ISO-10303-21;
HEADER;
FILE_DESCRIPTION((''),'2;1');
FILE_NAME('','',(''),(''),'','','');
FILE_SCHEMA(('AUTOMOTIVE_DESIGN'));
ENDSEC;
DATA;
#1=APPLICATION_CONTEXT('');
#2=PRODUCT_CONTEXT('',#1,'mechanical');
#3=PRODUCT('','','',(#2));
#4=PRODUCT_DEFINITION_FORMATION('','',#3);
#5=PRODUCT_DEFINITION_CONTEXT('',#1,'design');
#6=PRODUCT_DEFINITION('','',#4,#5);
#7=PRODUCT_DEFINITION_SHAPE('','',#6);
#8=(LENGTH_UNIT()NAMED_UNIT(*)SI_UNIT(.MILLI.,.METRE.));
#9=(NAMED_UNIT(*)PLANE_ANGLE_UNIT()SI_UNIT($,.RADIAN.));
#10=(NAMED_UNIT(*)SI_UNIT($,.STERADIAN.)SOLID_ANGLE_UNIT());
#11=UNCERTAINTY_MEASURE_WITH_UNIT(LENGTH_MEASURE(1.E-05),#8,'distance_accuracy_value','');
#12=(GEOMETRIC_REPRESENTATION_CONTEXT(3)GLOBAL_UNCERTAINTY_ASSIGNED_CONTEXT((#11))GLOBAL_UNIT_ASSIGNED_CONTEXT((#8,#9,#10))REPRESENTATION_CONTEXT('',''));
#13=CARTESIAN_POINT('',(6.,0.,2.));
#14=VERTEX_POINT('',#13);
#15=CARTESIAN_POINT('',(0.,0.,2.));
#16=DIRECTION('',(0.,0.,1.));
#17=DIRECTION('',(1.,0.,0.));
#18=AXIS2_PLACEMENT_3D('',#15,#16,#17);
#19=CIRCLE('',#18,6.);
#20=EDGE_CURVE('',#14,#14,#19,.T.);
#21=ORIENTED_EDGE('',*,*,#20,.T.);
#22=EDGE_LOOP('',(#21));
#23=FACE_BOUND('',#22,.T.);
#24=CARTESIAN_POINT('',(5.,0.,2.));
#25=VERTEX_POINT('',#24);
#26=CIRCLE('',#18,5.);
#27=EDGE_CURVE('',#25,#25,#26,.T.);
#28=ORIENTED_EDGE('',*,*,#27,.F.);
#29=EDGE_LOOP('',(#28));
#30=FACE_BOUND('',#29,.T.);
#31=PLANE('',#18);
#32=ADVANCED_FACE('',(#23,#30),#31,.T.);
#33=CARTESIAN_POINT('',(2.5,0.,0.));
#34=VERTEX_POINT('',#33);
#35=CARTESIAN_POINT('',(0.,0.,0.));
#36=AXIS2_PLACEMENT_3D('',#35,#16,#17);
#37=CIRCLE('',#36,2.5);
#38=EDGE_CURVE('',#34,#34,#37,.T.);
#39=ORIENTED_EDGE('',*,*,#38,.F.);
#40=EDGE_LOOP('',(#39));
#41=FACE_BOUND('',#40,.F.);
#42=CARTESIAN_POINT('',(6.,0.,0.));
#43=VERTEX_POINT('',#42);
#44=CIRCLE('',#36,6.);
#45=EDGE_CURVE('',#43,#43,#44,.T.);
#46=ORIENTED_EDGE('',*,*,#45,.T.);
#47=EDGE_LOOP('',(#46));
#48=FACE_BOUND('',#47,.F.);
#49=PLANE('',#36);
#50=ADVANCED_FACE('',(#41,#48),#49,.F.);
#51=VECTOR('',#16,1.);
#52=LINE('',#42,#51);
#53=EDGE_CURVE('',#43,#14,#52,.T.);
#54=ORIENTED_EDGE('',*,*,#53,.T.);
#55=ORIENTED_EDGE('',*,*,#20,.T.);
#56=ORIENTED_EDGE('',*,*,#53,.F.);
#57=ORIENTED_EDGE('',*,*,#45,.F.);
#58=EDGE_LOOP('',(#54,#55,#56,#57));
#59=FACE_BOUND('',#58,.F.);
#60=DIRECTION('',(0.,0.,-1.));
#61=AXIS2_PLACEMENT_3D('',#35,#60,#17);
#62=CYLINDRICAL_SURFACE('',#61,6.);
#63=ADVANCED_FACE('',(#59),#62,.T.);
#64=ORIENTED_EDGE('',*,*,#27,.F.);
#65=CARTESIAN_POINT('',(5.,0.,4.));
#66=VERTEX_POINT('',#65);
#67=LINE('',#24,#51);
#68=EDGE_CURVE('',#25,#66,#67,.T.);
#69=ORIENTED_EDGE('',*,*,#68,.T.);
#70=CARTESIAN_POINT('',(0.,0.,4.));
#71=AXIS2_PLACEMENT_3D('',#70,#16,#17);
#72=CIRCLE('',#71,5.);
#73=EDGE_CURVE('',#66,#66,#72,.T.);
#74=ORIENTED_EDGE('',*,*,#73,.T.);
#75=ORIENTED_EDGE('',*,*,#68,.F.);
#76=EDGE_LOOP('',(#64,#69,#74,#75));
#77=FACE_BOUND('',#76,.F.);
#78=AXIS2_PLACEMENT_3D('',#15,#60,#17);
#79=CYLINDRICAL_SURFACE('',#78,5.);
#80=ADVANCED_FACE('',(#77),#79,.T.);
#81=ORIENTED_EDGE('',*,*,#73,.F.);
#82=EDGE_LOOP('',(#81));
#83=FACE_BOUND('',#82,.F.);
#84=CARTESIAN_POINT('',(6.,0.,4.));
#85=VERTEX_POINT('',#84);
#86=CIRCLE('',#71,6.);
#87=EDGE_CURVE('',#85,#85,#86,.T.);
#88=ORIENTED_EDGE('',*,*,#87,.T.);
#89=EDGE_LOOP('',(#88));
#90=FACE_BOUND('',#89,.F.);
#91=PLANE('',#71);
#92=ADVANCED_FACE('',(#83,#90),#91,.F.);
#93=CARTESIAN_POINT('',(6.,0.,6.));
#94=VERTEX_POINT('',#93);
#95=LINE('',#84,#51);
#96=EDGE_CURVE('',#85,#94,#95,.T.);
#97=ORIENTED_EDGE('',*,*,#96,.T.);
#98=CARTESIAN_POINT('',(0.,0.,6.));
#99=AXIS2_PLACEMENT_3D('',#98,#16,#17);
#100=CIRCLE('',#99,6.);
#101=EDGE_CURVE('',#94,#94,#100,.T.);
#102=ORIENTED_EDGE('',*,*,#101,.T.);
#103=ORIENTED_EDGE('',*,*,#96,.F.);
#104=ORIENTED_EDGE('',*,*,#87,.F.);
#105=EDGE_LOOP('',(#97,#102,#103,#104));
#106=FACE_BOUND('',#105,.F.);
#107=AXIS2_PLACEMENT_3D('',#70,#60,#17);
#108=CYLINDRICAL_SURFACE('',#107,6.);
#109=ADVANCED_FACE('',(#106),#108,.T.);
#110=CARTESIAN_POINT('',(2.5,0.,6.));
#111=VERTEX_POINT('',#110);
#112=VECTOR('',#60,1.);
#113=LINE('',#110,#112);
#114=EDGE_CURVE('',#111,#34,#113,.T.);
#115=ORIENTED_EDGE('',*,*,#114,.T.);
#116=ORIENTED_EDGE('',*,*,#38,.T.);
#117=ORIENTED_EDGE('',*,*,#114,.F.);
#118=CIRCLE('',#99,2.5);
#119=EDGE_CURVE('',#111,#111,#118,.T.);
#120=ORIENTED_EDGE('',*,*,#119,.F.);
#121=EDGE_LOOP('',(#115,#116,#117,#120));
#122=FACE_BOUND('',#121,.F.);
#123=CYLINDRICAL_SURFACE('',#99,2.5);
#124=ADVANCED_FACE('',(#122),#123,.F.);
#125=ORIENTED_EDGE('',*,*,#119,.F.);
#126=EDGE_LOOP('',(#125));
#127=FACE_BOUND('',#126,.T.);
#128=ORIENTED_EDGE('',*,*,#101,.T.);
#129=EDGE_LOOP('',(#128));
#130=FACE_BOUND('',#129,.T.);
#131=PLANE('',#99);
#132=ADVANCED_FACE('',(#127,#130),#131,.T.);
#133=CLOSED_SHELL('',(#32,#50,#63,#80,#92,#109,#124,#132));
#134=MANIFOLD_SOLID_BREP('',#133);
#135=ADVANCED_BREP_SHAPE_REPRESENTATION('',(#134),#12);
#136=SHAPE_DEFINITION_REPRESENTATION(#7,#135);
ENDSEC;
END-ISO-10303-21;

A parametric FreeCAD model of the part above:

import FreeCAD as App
import Part
import Sketcher

doc = App.newDocument("Part")
body = doc.addObject("PartDesign::Body", "Body")

# Sketch on XY plane
sketch1 = doc.addObject("Sketcher::SketchObject", "Sketch")
body.addObject(sketch1)
sketch1.AttachmentSupport = (doc.XY_Plane, [""])
sketch1.MapMode = "FlatFace"
sketch1.addGeometry(Part.Circle(App.Vector(0, 0, 0), App.Vector(0, 0, 1), 6), False)
sketch1.addConstraint([
    Sketcher.Constraint("Coincident", 0, 3, -1, 1),
    Sketcher.Constraint("Diameter", 0, 12.0),
])
pad1 = doc.addObject("PartDesign::Pad", "Pad")
body.addObject(pad1)
pad1.Profile = sketch1
pad1.Length = 2

# Sketch on XY plane
sketch2 = doc.addObject("Sketcher::SketchObject", "Sketch001")
body.addObject(sketch2)
sketch2.AttachmentSupport = (doc.XY_Plane, [""])
sketch2.MapMode = "FlatFace"
sketch2.AttachmentOffset = App.Placement(App.Vector(0, 0, 2), App.Rotation())
sketch2.addGeometry(Part.Circle(App.Vector(0, 0, 0), App.Vector(0, 0, 1), 5), False)
sketch2.addConstraint([
    Sketcher.Constraint("Coincident", 0, 3, -1, 1),
    Sketcher.Constraint("Diameter", 0, 10.0),
])
pad2 = doc.addObject("PartDesign::Pad", "Pad001")
body.addObject(pad2)
pad2.Profile = sketch2
pad2.Length = 2

# Sketch on XY plane
sketch3 = doc.addObject("Sketcher::SketchObject", "Sketch002")
body.addObject(sketch3)
sketch3.AttachmentSupport = (doc.XY_Plane, [""])
sketch3.MapMode = "FlatFace"
sketch3.AttachmentOffset = App.Placement(App.Vector(0, 0, 4), App.Rotation())
sketch3.addGeometry(Part.Circle(App.Vector(0, 0, 0), App.Vector(0, 0, 1), 6), False)
sketch3.addConstraint([
    Sketcher.Constraint("Coincident", 0, 3, -1, 1),
    Sketcher.Constraint("Diameter", 0, 12.0),
])
pad3 = doc.addObject("PartDesign::Pad", "Pad002")
body.addObject(pad3)
pad3.Profile = sketch3
pad3.Length = 2

# Sketch on XY plane
sketch4 = doc.addObject("Sketcher::SketchObject", "Sketch003")
body.addObject(sketch4)
sketch4.AttachmentSupport = (doc.XY_Plane, [""])
sketch4.MapMode = "FlatFace"
sketch4.AttachmentOffset = App.Placement(App.Vector(0, 0, 6), App.Rotation())
sketch4.addGeometry(Part.Circle(App.Vector(0, 0, 0), App.Vector(0, 0, 1), 2.5), False)
sketch4.addConstraint([
    Sketcher.Constraint("Coincident", 0, 3, -1, 1),
    Sketcher.Constraint("Diameter", 0, 5.0),
])
pocket1 = doc.addObject("PartDesign::Pocket", "Pocket")
body.addObject(pocket1)
pocket1.Profile = sketch4
pocket1.Type = "ThroughAll"

doc.recompute()
